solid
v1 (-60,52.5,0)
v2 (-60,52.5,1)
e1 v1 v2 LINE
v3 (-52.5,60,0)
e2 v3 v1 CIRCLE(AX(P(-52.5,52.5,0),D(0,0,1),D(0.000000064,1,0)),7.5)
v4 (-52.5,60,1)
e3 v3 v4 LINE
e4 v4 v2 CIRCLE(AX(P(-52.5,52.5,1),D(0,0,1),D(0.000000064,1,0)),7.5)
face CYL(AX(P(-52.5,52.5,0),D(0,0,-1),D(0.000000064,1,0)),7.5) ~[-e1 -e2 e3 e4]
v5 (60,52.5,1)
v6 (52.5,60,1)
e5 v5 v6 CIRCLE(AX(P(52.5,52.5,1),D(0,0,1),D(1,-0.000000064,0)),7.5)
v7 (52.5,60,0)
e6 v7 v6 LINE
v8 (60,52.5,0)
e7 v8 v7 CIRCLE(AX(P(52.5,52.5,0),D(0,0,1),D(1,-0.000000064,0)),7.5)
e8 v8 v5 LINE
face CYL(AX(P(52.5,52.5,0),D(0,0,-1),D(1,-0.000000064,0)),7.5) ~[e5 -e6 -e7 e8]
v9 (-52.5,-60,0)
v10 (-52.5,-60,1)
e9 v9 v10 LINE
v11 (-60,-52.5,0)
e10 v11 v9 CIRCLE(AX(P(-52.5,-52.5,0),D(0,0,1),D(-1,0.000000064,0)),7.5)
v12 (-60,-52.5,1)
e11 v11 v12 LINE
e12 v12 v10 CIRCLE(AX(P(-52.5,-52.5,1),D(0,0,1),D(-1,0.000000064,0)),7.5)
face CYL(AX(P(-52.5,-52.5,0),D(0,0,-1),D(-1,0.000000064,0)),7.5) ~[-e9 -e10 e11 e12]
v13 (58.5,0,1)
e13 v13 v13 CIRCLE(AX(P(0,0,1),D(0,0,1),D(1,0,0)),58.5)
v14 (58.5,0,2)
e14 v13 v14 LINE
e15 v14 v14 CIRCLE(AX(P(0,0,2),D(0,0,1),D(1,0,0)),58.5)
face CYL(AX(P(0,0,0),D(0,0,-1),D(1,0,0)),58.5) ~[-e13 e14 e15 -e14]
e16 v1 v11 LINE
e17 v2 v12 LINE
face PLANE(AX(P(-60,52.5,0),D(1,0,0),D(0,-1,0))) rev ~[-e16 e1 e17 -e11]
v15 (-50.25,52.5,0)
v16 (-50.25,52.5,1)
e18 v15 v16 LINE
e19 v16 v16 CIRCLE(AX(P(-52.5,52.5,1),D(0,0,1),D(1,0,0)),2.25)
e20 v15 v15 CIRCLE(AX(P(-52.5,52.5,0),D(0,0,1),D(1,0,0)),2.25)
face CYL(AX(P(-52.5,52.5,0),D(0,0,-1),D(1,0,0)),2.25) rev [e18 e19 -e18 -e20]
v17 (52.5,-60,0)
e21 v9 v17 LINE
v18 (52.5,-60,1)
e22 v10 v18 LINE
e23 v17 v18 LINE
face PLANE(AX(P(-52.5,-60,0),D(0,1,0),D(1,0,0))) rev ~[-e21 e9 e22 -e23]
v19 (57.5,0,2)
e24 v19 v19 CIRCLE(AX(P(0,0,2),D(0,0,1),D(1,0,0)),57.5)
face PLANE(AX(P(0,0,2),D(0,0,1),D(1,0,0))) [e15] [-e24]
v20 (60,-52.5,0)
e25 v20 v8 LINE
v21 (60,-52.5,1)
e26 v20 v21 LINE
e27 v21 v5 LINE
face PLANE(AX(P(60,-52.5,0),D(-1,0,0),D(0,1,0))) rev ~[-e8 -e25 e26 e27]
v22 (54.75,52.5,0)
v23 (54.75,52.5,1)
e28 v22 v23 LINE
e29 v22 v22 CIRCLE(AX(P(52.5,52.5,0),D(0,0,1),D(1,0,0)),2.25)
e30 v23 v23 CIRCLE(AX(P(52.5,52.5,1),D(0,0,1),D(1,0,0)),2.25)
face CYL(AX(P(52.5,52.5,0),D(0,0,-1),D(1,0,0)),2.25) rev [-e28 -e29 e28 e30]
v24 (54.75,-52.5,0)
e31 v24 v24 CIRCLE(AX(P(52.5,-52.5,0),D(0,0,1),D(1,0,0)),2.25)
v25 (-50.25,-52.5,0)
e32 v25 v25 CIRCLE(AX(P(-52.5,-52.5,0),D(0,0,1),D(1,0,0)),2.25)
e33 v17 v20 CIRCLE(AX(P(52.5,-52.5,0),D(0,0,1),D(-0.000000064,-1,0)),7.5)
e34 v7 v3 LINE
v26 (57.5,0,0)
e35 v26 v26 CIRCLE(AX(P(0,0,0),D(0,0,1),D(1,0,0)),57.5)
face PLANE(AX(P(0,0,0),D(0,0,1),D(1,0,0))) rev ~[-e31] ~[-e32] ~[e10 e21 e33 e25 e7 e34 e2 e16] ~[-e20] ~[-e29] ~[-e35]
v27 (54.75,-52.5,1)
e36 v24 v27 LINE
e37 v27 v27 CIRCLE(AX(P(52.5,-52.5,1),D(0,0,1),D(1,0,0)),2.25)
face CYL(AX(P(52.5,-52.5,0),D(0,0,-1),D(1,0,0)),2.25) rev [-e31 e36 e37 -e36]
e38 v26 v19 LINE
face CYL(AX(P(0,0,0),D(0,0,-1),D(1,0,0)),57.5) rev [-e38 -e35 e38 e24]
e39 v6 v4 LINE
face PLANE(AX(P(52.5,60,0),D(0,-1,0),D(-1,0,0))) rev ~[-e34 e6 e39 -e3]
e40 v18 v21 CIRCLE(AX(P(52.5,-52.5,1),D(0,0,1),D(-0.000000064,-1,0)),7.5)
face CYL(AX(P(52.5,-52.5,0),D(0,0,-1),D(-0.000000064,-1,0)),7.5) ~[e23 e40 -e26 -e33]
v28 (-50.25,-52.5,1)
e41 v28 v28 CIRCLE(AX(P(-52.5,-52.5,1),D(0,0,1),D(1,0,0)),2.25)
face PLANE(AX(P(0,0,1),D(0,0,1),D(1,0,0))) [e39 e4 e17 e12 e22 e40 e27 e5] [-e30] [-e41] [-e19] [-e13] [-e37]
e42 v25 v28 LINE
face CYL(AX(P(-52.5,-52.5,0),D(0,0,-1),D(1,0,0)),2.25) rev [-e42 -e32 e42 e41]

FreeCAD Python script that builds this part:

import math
import FreeCAD as App
import Part
import Sketcher
from FreeCAD import Vector

doc = App.newDocument("Part")
body = doc.addObject("PartDesign::Body", "Body")

# Sketch on XY plane
sketch1 = body.newObject("Sketcher::SketchObject", "Sketch")
sketch1.AttachmentSupport = (doc.getObject("XY_Plane"), [""])
sketch1.MapMode = "FlatFace"
sketch1.addGeometry(Part.LineSegment(Vector(52.5, 60, 0), Vector(-52.5, 60, 0)), False)
sketch1.addGeometry(Part.ArcOfCircle(Part.Circle(Vector(-52.5, 52.5, 0), Vector(0, 0, 1), 7.5), math.radians(90), math.radians(180)), False)
sketch1.addGeometry(Part.LineSegment(Vector(-60, 52.5, 0), Vector(-60, -52.5, 0)), False)
sketch1.addGeometry(Part.ArcOfCircle(Part.Circle(Vector(-52.5, -52.5, 0), Vector(0, 0, 1), 7.5), math.radians(180), math.radians(270)), False)
sketch1.addGeometry(Part.LineSegment(Vector(-52.5, -60, 0), Vector(52.5, -60, 0)), False)
sketch1.addGeometry(Part.ArcOfCircle(Part.Circle(Vector(52.5, -52.5, 0), Vector(0, 0, 1), 7.5), math.radians(-90), math.radians(0)), False)
sketch1.addGeometry(Part.LineSegment(Vector(60, -52.5, 0), Vector(60, 52.5, 0)), False)
sketch1.addGeometry(Part.ArcOfCircle(Part.Circle(Vector(52.5, 52.5, 0), Vector(0, 0, 1), 7.5), math.radians(0), math.radians(90)), False)
sketch1.addGeometry(Part.Circle(Vector(-52.5, -52.5, 0), Vector(0, 0, 1), 2.2), False)
sketch1.addGeometry(Part.Circle(Vector(52.5, -52.5, 0), Vector(0, 0, 1), 2.2), False)
sketch1.addGeometry(Part.Circle(Vector(-52.5, 52.5, 0), Vector(0, 0, 1), 2.2), False)
sketch1.addGeometry(Part.Circle(Vector(0, 0, 0), Vector(0, 0, 1), 58.5), False)
sketch1.addGeometry(Part.Circle(Vector(52.5, 52.5, 0), Vector(0, 0, 1), 2.2), False)
sketch1.addConstraint(Sketcher.Constraint("Tangent", 0, 2, 1, 1))
sketch1.addConstraint(Sketcher.Constraint("Tangent", 1, 2, 2, 1))
sketch1.addConstraint(Sketcher.Constraint("Tangent", 2, 2, 3, 1))
sketch1.addConstraint(Sketcher.Constraint("Tangent", 3, 2, 4, 1))
sketch1.addConstraint(Sketcher.Constraint("Tangent", 4, 2, 5, 1))
sketch1.addConstraint(Sketcher.Constraint("Tangent", 5, 2, 6, 1))
sketch1.addConstraint(Sketcher.Constraint("Tangent", 6, 2, 7, 1))
sketch1.addConstraint(Sketcher.Constraint("Tangent", 7, 2, 0, 1))
sketch1.addConstraint(Sketcher.Constraint("Horizontal", 0))
sketch1.addConstraint(Sketcher.Constraint("Vertical", 2))
sketch1.addConstraint(Sketcher.Constraint("Horizontal", 4))
sketch1.addConstraint(Sketcher.Constraint("Vertical", 6))
sketch1.addConstraint(Sketcher.Constraint("Coincident", 11, 3, -1, 1))
sketch1.addConstraint(Sketcher.Constraint("Coincident", 8, 3, 3, 3))
sketch1.addConstraint(Sketcher.Constraint("Coincident", 9, 3, 5, 3))
sketch1.addConstraint(Sketcher.Constraint("Coincident", 10, 3, 1, 3))
sketch1.addConstraint(Sketcher.Constraint("Coincident", 12, 3, 7, 3))
sketch1.addConstraint(Sketcher.Constraint("Equal", 1, 3))
sketch1.addConstraint(Sketcher.Constraint("Equal", 3, 5))
sketch1.addConstraint(Sketcher.Constraint("Equal", 5, 7))
sketch1.addConstraint(Sketcher.Constraint("Equal", 8, 9))
sketch1.addConstraint(Sketcher.Constraint("Equal", 9, 10))
sketch1.addConstraint(Sketcher.Constraint("Equal", 10, 12))
sketch1.addConstraint(Sketcher.Constraint("Symmetric", 1, 3, 5, 3, -1, 1))
sketch1.addConstraint(Sketcher.Constraint("Equal", 4, 2))
sketch1.addConstraint(Sketcher.Constraint("Diameter", 11, 117.0))
sketch1.addConstraint(Sketcher.Constraint("Diameter", 8, 4.5))
sketch1.addConstraint(Sketcher.Constraint("Radius", 1, 7.5))
sketch1.addConstraint(Sketcher.Constraint("DistanceX", 0, 2, 0, 1, 105.0))
pad1 = body.newObject("PartDesign::Pad", "Pad")
pad1.Profile = sketch1
pad1.Length = 1

# Sketch on XY plane
sketch2 = body.newObject("Sketcher::SketchObject", "Sketch001")
sketch2.AttachmentSupport = (doc.getObject("XY_Plane"), [""])
sketch2.MapMode = "FlatFace"
sketch2.addGeometry(Part.Circle(Vector(0, 0, 0), Vector(0, 0, 1), 58), False)
sketch2.addGeometry(Part.Circle(Vector(0, 0, 0), Vector(0, 0, 1), 58), False)
sketch2.addConstraint(Sketcher.Constraint("Coincident", 0, 3, -1, 1))
sketch2.addConstraint(Sketcher.Constraint("Coincident", 1, 3, -1, 1))
sketch2.addConstraint(Sketcher.Constraint("Diameter", 0, 117.0))
sketch2.addConstraint(Sketcher.Constraint("Diameter", 1, 115.0))
pad2 = body.newObject("PartDesign::Pad", "Pad001")
pad2.Profile = sketch2
pad2.Length = 2

doc.recompute()
